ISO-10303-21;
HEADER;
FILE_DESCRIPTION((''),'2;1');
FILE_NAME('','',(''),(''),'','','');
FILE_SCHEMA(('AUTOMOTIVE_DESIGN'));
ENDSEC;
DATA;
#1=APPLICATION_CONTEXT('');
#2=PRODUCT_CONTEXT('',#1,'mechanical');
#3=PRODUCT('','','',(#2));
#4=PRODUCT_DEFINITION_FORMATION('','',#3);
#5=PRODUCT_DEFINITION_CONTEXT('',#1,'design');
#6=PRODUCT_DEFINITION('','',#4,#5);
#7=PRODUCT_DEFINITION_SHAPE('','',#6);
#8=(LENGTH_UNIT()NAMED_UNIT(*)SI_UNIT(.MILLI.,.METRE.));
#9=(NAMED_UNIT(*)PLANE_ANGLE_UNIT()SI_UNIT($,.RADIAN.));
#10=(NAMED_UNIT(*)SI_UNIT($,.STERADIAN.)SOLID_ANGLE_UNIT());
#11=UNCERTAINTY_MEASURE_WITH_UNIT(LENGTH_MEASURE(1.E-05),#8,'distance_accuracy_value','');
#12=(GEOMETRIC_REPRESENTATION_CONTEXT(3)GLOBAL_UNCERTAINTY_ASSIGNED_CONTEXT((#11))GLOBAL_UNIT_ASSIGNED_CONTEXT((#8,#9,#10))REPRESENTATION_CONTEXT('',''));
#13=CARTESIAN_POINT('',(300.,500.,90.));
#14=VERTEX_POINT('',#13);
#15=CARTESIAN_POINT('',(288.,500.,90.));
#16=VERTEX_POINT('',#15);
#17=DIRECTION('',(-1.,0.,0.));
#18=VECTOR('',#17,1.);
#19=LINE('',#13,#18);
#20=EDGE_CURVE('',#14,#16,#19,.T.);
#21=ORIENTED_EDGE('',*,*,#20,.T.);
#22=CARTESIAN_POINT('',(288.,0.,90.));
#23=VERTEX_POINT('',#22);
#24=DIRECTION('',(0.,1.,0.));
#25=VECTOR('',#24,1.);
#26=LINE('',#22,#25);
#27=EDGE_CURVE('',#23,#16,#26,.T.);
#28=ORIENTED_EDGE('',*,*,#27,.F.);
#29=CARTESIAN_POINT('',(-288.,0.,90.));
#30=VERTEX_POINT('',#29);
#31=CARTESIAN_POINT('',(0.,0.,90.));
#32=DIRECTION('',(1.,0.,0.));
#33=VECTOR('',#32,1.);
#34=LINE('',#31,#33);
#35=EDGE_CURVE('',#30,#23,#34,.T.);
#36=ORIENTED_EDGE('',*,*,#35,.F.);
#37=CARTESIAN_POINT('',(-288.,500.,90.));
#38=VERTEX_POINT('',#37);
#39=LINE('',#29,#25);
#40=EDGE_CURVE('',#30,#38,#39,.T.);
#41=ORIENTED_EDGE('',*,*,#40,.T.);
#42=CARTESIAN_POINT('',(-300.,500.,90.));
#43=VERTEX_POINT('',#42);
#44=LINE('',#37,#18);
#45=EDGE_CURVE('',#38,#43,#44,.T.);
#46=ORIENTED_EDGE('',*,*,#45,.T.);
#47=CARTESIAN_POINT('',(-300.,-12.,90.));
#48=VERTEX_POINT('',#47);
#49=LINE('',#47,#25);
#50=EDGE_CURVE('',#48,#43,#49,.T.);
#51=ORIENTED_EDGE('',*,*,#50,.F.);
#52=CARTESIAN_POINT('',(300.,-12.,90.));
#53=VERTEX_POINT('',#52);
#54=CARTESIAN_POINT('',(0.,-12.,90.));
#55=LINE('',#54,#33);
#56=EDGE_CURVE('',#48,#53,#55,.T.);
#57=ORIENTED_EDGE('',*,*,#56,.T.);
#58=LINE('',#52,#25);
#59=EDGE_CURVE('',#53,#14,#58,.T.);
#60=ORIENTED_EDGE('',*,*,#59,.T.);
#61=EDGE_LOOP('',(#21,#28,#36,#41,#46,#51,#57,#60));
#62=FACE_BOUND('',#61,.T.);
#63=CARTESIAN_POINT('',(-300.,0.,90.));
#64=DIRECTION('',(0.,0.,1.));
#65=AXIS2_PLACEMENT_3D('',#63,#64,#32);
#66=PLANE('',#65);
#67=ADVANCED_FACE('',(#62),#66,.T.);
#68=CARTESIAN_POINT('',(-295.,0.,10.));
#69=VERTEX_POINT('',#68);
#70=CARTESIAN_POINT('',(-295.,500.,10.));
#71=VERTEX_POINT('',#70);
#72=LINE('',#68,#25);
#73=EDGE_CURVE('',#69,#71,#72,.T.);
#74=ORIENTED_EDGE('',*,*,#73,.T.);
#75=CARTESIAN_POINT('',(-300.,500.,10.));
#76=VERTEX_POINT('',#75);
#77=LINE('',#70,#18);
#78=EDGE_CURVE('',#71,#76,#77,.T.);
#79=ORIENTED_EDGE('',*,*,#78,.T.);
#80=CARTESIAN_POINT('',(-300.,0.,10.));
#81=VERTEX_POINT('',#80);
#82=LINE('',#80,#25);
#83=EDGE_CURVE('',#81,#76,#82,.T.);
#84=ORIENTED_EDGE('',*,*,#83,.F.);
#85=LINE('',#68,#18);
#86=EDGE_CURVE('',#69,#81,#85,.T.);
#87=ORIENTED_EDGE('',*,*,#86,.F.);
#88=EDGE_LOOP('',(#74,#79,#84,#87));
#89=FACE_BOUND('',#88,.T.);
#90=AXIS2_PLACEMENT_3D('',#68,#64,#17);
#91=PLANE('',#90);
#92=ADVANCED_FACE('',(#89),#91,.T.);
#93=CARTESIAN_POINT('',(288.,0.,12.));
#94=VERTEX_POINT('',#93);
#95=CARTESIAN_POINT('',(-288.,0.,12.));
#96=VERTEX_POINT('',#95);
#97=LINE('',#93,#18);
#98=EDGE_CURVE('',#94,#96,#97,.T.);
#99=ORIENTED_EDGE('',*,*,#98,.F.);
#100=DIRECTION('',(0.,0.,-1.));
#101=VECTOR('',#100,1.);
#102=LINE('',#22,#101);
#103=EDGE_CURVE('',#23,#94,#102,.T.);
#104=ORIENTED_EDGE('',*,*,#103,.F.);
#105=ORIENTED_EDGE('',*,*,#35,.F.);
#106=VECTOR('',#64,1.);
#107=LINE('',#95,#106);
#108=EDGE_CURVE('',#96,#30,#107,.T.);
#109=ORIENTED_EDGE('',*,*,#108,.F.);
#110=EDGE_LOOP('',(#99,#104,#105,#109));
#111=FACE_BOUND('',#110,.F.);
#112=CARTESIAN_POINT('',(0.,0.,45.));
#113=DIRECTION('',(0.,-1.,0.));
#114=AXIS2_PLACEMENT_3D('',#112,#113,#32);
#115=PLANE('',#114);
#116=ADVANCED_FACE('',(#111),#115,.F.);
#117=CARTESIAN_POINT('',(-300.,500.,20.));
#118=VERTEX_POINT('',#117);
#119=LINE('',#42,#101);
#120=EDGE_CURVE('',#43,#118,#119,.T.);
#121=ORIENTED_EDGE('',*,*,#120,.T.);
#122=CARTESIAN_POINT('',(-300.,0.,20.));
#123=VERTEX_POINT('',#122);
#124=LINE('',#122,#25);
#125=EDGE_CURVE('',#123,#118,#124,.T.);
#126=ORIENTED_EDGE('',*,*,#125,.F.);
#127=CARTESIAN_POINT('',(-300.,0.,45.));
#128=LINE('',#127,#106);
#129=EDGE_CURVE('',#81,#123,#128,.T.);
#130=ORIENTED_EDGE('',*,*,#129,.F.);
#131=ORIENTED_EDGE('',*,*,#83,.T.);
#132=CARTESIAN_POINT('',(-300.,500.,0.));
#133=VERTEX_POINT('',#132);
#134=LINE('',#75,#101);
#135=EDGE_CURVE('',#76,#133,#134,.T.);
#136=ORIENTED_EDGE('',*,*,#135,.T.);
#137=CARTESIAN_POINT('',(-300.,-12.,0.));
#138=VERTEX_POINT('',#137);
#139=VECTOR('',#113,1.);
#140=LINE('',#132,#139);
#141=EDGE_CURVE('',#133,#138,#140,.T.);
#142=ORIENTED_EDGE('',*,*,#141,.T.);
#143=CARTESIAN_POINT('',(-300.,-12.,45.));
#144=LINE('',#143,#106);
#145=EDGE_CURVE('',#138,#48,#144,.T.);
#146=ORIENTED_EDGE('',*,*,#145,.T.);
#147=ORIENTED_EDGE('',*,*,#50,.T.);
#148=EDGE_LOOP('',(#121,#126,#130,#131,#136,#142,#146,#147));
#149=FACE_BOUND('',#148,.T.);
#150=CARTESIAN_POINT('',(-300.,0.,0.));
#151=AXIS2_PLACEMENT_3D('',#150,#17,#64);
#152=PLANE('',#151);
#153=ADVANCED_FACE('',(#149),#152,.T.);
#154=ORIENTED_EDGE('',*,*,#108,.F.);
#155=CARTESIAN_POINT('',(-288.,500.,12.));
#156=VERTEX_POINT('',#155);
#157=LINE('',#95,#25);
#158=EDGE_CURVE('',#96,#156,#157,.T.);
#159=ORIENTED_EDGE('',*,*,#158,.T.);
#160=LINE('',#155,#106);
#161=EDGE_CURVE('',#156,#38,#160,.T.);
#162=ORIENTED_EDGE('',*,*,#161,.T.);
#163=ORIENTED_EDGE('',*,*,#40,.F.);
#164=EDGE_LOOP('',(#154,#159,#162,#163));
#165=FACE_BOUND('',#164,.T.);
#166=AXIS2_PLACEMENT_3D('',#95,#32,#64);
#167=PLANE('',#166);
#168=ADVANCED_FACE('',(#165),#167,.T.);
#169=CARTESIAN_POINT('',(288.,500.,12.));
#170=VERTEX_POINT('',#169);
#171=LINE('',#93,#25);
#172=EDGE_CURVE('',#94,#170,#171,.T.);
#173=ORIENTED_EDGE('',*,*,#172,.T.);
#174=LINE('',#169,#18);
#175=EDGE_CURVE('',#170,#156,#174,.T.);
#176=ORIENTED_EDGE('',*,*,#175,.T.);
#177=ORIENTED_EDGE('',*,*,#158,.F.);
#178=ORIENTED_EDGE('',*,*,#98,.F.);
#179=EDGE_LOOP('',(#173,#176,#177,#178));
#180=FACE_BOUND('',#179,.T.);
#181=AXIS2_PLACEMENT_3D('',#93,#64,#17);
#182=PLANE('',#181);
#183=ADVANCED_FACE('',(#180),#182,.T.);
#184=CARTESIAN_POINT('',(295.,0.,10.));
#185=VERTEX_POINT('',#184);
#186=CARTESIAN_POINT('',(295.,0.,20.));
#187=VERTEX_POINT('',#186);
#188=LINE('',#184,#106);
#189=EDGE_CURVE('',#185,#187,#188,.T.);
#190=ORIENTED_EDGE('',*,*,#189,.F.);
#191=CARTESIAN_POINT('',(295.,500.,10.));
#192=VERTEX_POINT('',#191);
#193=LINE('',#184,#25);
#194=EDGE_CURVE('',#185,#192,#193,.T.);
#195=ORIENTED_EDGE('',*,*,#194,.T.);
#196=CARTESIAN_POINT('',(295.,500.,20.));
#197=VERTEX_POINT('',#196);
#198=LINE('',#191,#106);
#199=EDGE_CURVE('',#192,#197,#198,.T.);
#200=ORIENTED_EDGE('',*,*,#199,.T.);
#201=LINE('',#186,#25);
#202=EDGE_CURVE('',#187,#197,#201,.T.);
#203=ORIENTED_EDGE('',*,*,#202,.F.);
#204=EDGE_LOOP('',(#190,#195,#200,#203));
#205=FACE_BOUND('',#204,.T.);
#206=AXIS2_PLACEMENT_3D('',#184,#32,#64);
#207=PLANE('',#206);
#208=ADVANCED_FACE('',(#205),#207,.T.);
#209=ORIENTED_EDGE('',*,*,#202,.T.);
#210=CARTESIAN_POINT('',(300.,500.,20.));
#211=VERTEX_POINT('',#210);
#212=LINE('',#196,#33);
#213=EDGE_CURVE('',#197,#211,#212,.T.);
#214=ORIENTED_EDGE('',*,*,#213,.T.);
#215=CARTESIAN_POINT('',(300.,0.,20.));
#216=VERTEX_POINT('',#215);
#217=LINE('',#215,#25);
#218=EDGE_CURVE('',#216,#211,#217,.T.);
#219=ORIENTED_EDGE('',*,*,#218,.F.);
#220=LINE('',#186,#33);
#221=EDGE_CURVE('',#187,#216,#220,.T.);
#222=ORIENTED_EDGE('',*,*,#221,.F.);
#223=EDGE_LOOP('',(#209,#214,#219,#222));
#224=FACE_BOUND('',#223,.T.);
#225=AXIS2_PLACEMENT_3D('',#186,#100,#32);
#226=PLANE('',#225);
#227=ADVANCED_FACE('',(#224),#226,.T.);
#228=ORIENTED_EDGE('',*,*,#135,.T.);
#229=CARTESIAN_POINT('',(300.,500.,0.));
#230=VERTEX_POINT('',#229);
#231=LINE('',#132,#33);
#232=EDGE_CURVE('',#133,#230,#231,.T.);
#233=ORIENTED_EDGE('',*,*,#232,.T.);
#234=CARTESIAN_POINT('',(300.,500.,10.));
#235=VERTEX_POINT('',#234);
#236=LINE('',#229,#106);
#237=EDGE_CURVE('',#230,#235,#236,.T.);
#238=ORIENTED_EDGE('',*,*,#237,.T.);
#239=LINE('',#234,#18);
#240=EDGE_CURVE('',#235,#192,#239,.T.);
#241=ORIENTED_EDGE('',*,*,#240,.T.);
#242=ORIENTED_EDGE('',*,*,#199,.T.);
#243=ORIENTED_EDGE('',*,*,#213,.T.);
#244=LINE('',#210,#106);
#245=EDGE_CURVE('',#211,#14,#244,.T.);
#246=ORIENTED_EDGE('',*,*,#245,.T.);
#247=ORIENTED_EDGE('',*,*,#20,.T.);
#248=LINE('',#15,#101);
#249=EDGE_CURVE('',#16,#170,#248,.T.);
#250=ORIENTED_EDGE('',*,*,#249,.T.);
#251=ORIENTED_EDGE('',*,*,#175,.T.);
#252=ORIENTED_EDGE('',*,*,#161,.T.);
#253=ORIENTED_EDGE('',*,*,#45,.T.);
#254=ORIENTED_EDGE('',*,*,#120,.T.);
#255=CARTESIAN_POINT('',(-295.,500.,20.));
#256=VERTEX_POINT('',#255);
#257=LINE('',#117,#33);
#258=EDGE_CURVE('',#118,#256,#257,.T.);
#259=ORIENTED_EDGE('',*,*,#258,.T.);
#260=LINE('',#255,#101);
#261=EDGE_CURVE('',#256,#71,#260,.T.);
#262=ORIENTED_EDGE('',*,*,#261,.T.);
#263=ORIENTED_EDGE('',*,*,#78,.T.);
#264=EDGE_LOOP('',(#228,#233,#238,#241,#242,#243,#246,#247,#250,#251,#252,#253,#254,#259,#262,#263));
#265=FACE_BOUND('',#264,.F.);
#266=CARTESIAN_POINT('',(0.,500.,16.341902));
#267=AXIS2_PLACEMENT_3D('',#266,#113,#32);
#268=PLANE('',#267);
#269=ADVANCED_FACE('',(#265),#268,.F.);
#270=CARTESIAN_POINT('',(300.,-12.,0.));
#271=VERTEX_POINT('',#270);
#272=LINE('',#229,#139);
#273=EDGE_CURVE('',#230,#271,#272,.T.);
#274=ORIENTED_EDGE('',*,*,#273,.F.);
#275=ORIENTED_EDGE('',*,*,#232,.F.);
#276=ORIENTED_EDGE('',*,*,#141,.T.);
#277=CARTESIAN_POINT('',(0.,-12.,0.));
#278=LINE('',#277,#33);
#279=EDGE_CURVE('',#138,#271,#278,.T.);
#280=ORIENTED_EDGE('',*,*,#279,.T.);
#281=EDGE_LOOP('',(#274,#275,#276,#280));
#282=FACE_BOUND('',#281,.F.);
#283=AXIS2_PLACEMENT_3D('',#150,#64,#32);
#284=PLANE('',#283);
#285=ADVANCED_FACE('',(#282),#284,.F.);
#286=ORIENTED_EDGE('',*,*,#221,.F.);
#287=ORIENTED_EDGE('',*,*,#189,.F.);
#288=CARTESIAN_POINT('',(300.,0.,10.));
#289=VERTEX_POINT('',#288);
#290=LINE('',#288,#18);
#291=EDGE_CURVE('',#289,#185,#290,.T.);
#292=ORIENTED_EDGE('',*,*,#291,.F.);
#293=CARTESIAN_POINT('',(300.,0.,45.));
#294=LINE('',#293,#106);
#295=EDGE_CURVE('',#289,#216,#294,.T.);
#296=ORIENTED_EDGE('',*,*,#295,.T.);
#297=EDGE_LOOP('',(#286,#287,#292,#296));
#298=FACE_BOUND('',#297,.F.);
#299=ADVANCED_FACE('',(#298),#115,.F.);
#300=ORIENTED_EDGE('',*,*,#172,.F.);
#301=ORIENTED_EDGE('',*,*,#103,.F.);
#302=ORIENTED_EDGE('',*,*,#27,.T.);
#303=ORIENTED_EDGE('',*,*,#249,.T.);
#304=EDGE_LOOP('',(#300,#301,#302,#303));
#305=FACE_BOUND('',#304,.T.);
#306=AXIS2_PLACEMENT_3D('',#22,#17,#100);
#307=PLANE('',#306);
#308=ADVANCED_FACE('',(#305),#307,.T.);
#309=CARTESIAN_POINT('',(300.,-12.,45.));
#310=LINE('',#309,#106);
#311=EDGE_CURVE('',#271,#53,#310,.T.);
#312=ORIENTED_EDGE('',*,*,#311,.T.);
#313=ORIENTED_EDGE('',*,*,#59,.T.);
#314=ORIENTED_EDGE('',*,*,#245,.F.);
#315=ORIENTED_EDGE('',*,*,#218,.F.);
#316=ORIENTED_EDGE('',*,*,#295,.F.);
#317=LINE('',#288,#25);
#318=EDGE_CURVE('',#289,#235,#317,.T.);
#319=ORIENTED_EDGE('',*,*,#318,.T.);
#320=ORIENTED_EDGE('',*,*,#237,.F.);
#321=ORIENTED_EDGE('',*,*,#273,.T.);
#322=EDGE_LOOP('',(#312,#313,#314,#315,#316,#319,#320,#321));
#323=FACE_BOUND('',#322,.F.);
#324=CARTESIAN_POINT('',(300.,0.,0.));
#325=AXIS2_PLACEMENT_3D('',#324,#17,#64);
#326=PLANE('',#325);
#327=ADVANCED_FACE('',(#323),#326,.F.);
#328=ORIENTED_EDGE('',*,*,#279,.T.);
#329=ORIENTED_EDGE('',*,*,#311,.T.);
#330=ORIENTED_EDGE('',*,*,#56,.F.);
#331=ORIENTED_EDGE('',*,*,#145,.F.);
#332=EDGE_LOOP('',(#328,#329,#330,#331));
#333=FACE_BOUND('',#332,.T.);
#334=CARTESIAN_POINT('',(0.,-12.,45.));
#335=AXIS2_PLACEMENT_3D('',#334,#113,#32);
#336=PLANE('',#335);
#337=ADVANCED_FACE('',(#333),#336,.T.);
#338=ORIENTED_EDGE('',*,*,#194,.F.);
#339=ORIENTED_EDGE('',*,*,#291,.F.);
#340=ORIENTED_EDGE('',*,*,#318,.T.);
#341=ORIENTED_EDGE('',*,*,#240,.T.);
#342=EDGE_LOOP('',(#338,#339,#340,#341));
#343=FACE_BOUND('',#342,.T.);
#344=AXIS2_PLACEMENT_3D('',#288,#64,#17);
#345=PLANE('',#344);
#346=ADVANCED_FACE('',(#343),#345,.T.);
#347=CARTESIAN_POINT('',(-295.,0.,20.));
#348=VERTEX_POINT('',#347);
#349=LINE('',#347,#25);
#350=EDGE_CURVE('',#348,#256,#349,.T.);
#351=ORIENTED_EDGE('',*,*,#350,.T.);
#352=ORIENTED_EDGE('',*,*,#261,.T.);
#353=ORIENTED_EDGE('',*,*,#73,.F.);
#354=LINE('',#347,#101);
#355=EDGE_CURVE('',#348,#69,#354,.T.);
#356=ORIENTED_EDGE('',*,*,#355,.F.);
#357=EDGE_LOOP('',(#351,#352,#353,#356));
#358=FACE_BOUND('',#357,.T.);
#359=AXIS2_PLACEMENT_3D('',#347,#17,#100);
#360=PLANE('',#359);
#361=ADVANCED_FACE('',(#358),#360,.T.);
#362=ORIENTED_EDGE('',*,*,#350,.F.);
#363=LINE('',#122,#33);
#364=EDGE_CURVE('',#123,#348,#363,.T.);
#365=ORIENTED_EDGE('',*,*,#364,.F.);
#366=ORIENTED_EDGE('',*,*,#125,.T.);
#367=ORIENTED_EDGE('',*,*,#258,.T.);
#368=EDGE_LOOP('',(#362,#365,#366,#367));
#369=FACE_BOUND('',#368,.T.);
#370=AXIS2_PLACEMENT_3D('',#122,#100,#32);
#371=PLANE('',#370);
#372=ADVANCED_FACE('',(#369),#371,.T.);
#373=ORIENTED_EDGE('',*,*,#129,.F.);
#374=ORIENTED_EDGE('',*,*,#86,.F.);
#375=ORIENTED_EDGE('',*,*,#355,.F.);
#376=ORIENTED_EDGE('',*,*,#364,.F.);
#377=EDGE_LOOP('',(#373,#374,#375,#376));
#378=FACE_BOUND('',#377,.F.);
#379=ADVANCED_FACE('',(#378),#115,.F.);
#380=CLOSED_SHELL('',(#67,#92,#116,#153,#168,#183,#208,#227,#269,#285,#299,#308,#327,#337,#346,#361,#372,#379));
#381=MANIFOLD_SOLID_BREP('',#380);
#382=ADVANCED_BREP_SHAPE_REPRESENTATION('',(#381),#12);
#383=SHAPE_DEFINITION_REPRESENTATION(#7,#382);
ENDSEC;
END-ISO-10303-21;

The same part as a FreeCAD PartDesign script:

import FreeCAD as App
import Part
import Sketcher


def add_polygon(sketch, points):
    """Adds a closed chain of lines whose ends are joined by coincident constraints."""
    first, n = sketch.GeometryCount, len(points)
    for a, b in zip(points, points[1:] + points[:1]):
        sketch.addGeometry(Part.LineSegment(App.Vector(*a, 0), App.Vector(*b, 0)), False)
    for i in range(n):
        sketch.addConstraint(Sketcher.Constraint("Coincident", first + i, 2, first + (i + 1) % n, 1))

doc = App.newDocument("Part")
body = doc.addObject("PartDesign::Body", "Body")

# Sketch on XZ plane
sketch1 = doc.addObject("Sketcher::SketchObject", "Sketch")
body.addObject(sketch1)
sketch1.AttachmentSupport = (doc.XZ_Plane, [""])
sketch1.MapMode = "FlatFace"
add_polygon(sketch1, [(288, 12), (-288, 12), (-288, 90), (-300, 90), (-300, 20), (-295, 20), (-295, 10), (-300, 10), (-300, 0), (300, 0), (300, 10), (295, 10), (295, 20), (300, 20), (300, 90), (288, 90)])  # lines 0-15
sketch1.addConstraint(Sketcher.Constraint("Horizontal", 0))
sketch1.addConstraint(Sketcher.Constraint("Vertical", 1))
sketch1.addConstraint(Sketcher.Constraint("Horizontal", 2))
sketch1.addConstraint(Sketcher.Constraint("Vertical", 3))
sketch1.addConstraint(Sketcher.Constraint("Horizontal", 4))
sketch1.addConstraint(Sketcher.Constraint("Vertical", 5))
sketch1.addConstraint(Sketcher.Constraint("Horizontal", 6))
sketch1.addConstraint(Sketcher.Constraint("Vertical", 7))
sketch1.addConstraint(Sketcher.Constraint("Horizontal", 8))
sketch1.addConstraint(Sketcher.Constraint("Vertical", 9))
sketch1.addConstraint(Sketcher.Constraint("Horizontal", 10))
sketch1.addConstraint(Sketcher.Constraint("Vertical", 11))
sketch1.addConstraint(Sketcher.Constraint("Horizontal", 12))
sketch1.addConstraint(Sketcher.Constraint("Vertical", 13))
sketch1.addConstraint(Sketcher.Constraint("Horizontal", 14))
sketch1.addConstraint(Sketcher.Constraint("Vertical", 15))
sketch1.addConstraint(Sketcher.Constraint("Symmetric", 7, 2, 8, 2, -1, 1))
sketch1.addConstraint(Sketcher.Constraint("Symmetric", 5, 2, 10, 2, -2))
sketch1.addConstraint(Sketcher.Constraint("Symmetric", 3, 2, 12, 2, -2))
sketch1.addConstraint(Sketcher.Constraint("Symmetric", 1, 2, 14, 2, -2))
sketch1.addConstraint(Sketcher.Constraint("Vertical", 3, 2, 6, 2))
sketch1.addConstraint(Sketcher.Constraint("Equal", 5, 7))
sketch1.addConstraint(Sketcher.Constraint("DistanceX", 0, 2, 0, 1, 576.0))
sketch1.addConstraint(Sketcher.Constraint("DistanceX", 2, 2, 2, 1, 12.0))
sketch1.addConstraint(Sketcher.Constraint("DistanceX", 4, 1, 4, 2, 5.0))
sketch1.addConstraint(Sketcher.Constraint("DistanceY", 1, 1, 1, 2, 78.0))
sketch1.addConstraint(Sketcher.Constraint("DistanceY", 3, 2, 3, 1, 70.0))
sketch1.addConstraint(Sketcher.Constraint("DistanceY", 5, 2, 5, 1, 10.0))
pad1 = doc.addObject("PartDesign::Pad", "Pad")
body.addObject(pad1)
pad1.Profile = sketch1
pad1.Length = 500
pad1.Reversed = True

# Sketch on XZ plane
sketch2 = doc.addObject("Sketcher::SketchObject", "Sketch001")
body.addObject(sketch2)
sketch2.AttachmentSupport = (doc.XZ_Plane, [""])
sketch2.MapMode = "FlatFace"
add_polygon(sketch2, [(-300, 90), (-300, 0), (300, 0), (300, 90)])  # lines 0-3
sketch2.addConstraint(Sketcher.Constraint("Vertical", 0))
sketch2.addConstraint(Sketcher.Constraint("Horizontal", 1))
sketch2.addConstraint(Sketcher.Constraint("Vertical", 2))
sketch2.addConstraint(Sketcher.Constraint("Horizontal", 3))
sketch2.addConstraint(Sketcher.Constraint("Symmetric", 0, 2, 1, 2, -1, 1))
sketch2.addConstraint(Sketcher.Constraint("DistanceX", 1, 1, 1, 2, 600.0))
sketch2.addConstraint(Sketcher.Constraint("DistanceY", 0, 2, 0, 1, 90.0))
pad2 = doc.addObject("PartDesign::Pad", "Pad001")
body.addObject(pad2)
pad2.Profile = sketch2
pad2.Length = 12

doc.recompute()
